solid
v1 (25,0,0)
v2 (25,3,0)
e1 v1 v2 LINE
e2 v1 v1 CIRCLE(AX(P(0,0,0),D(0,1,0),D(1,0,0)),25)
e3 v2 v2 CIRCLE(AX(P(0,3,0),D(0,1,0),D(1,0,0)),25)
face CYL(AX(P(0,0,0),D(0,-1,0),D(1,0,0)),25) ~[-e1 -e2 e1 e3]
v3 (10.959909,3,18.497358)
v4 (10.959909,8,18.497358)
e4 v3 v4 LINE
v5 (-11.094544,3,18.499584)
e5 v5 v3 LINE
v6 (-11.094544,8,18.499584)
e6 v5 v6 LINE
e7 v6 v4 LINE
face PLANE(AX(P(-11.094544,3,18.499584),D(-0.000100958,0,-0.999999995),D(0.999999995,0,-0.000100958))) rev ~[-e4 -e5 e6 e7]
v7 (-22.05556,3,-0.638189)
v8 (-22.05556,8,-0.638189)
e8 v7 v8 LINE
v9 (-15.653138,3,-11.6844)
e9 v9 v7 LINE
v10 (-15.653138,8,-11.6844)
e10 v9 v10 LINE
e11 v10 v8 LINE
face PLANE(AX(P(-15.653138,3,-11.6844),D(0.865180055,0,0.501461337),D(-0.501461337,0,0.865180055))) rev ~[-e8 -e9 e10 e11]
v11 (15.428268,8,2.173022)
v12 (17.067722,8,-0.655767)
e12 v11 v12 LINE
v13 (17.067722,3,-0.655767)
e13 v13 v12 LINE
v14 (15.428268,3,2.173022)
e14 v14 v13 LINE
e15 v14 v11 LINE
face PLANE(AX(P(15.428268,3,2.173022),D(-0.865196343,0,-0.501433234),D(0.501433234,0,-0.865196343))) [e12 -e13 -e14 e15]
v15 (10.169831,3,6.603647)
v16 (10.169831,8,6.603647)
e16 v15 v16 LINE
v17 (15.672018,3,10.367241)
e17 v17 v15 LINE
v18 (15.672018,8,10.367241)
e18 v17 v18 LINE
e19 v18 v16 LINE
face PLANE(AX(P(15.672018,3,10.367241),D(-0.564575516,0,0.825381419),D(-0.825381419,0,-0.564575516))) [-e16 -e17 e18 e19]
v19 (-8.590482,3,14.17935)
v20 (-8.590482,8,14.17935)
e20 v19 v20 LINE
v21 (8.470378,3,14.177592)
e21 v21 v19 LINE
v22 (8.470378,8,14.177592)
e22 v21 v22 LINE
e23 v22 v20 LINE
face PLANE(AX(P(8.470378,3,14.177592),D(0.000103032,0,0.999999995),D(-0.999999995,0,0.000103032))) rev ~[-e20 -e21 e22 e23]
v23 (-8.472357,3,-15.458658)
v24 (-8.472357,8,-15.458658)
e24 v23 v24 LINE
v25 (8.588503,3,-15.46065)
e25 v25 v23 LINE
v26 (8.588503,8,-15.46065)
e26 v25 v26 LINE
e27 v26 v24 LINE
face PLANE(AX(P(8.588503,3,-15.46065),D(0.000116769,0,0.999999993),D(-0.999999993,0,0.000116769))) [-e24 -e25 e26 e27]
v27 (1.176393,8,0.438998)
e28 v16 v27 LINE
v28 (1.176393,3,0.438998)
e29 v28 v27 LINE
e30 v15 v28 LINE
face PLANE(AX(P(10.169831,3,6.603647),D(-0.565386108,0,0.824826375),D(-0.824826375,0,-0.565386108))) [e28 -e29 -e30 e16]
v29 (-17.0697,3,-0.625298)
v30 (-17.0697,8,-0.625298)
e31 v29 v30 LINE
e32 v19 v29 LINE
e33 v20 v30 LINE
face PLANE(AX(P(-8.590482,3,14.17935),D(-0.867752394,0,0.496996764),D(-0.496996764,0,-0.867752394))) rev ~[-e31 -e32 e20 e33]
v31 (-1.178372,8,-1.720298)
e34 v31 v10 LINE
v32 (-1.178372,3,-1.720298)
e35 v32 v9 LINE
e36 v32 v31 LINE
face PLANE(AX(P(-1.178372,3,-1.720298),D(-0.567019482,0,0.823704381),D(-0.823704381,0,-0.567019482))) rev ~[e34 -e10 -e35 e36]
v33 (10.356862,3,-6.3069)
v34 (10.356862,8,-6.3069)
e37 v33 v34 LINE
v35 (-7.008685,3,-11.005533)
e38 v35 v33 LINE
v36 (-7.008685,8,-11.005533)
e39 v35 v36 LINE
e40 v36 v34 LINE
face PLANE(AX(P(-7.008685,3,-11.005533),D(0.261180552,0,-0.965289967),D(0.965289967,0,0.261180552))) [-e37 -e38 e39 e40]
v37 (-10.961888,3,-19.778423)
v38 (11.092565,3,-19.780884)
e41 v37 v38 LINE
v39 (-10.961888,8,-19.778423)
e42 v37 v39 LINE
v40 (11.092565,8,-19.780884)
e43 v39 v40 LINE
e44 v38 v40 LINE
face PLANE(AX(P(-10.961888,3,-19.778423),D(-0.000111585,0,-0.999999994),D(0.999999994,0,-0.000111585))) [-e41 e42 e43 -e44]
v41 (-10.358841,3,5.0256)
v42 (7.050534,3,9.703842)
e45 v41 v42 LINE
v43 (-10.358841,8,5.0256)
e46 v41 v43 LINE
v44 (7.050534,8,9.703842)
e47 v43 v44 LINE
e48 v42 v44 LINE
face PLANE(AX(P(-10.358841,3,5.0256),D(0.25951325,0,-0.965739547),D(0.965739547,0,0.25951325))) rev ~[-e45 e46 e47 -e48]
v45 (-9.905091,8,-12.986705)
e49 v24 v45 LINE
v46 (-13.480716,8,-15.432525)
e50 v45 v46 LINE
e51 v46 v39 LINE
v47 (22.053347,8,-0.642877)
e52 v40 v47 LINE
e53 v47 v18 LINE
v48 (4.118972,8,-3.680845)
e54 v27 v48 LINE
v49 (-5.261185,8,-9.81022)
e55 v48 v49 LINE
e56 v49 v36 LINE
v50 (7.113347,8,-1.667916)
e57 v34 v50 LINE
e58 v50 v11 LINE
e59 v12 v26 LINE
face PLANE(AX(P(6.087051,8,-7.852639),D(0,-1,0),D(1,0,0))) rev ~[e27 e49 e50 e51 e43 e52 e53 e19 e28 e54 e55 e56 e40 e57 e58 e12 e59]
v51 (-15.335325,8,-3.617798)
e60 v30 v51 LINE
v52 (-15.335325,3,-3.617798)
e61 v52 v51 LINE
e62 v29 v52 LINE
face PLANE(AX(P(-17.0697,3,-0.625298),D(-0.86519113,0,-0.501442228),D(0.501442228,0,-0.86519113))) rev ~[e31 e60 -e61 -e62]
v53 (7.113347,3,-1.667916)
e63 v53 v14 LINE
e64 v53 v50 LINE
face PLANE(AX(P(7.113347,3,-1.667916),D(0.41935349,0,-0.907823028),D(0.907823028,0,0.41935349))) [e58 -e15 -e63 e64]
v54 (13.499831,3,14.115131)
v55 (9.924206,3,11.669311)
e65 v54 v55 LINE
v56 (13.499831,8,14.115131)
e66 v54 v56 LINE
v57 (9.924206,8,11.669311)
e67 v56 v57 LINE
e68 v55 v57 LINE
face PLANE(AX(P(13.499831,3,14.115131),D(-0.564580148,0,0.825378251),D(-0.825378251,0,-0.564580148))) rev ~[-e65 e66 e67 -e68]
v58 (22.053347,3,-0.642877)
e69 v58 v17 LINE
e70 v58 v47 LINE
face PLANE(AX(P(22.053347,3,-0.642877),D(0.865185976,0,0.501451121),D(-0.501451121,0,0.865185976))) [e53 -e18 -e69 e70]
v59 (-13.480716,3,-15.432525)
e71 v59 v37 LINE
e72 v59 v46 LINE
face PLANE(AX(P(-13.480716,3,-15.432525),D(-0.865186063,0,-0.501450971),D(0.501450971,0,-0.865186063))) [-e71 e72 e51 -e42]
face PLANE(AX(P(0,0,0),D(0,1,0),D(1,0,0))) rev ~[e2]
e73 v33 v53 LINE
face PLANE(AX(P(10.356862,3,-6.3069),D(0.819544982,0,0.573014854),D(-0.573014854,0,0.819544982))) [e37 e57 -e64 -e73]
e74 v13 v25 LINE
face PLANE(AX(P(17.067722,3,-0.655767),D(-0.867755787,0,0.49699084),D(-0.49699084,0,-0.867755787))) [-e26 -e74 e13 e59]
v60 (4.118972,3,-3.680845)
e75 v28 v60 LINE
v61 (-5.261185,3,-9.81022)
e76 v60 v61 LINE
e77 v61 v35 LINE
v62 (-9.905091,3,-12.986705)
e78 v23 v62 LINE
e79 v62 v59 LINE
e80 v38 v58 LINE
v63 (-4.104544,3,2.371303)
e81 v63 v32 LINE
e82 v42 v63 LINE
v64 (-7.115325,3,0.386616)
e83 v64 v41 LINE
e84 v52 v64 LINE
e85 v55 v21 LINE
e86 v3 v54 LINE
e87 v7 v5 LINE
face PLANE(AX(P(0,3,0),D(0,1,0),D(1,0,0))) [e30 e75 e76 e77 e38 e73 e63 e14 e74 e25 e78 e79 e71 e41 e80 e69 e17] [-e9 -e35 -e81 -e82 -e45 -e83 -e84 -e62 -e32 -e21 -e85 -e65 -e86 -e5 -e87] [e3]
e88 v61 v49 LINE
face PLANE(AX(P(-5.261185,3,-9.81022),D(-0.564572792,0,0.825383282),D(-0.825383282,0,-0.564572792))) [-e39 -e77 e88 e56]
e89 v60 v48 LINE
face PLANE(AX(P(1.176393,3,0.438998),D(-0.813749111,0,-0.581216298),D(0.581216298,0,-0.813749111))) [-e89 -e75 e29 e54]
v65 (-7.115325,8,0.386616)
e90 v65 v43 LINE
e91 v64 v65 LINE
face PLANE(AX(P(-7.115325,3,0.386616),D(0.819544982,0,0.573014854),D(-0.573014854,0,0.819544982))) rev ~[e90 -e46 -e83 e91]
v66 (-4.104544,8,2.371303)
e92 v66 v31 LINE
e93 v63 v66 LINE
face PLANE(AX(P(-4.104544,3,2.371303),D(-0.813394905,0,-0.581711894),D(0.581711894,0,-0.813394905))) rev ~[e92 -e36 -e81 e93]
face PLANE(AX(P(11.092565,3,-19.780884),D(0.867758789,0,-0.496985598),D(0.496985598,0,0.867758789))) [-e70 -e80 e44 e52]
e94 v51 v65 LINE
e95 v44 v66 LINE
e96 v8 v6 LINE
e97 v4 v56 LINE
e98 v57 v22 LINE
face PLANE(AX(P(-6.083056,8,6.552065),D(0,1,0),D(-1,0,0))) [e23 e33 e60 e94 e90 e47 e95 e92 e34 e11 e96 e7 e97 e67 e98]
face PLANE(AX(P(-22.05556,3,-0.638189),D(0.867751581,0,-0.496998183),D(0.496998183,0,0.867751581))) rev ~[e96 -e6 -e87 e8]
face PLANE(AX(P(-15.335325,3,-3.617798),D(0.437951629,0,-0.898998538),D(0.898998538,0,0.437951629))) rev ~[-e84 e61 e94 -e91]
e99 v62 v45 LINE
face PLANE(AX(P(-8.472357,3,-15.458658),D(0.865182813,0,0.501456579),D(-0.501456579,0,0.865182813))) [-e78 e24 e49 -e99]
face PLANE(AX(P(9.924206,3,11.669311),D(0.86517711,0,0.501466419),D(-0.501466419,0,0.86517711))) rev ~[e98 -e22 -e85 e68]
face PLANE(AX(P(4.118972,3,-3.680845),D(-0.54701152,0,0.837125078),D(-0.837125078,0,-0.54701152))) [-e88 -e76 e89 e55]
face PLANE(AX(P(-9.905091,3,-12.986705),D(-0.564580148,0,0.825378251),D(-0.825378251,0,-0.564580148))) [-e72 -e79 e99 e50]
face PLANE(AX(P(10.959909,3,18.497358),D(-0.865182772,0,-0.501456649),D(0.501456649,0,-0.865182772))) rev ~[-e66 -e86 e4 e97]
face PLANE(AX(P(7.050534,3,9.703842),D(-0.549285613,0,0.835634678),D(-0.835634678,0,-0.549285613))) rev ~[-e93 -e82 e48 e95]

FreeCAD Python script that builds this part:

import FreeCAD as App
import Part
import Sketcher
from FreeCAD import Vector
Q = App.Units.Quantity

doc = App.newDocument("Part")
body = doc.addObject("PartDesign::Body", "Body")

sketch1 = body.newObject("Sketcher::SketchObject", "Sketch")
sketch1.AttachmentSupport = (doc.getObject("XZ_Plane"), [""])
sketch1.MapMode = "FlatFace"
sketch1.addGeometry(Part.Circle(Vector(0, 0, 0), Vector(0, 0, 1), 25), False)
sketch1.addConstraint(Sketcher.Constraint("Coincident", 0, 3, -1, 1))
sketch1.addConstraint(Sketcher.Constraint("Diameter", 0, Q("50 mm")))
pad1 = body.newObject("PartDesign::Pad", "Pad")
pad1.Profile = sketch1
pad1.Length = 3
pad1.Reversed = True

sketch2 = body.newObject("Sketcher::SketchObject", "Sketch001")
sketch2.AttachmentSupport = (doc.getObject("XZ_Plane"), [""])
sketch2.MapMode = "FlatFace"
sketch2.AttachmentOffset = App.Placement(Vector(0, 0, -3), App.Rotation())
sketch2.addGeometry(Part.LineSegment(Vector(-1.178372, -1.720298, 0), Vector(-4.104544, 2.371303, 0)), False)
sketch2.addGeometry(Part.LineSegment(Vector(-4.104544, 2.371303, 0), Vector(7.050534, 9.703842, 0)), False)
sketch2.addGeometry(Part.LineSegment(Vector(7.050534, 9.703842, 0), Vector(-10.358841, 5.0256, 0)), False)
sketch2.addGeometry(Part.LineSegment(Vector(-10.358841, 5.0256, 0), Vector(-7.115325, 0.386616, 0)), False)
sketch2.addGeometry(Part.LineSegment(Vector(-7.115325, 0.386616, 0), Vector(-15.335325, -3.617798, 0)), False)
sketch2.addGeometry(Part.LineSegment(Vector(-15.335325, -3.617798, 0), Vector(-17.0697, -0.625298, 0)), False)
sketch2.addGeometry(Part.LineSegment(Vector(-17.0697, -0.625298, 0), Vector(-8.590482, 14.17935, 0)), False)
sketch2.addGeometry(Part.LineSegment(Vector(-8.590482, 14.17935, 0), Vector(8.470378, 14.177592, 0)), False)
sketch2.addGeometry(Part.LineSegment(Vector(8.470378, 14.177592, 0), Vector(9.924206, 11.669311, 0)), False)
sketch2.addGeometry(Part.LineSegment(Vector(9.924206, 11.669311, 0), Vector(13.499831, 14.115131, 0)), False)
sketch2.addGeometry(Part.LineSegment(Vector(13.499831, 14.115131, 0), Vector(10.959909, 18.497358, 0)), False)
sketch2.addGeometry(Part.LineSegment(Vector(10.959909, 18.497358, 0), Vector(-11.094544, 18.499584, 0)), False)
sketch2.addGeometry(Part.LineSegment(Vector(-11.094544, 18.499584, 0), Vector(-22.05556, -0.638189, 0)), False)
sketch2.addGeometry(Part.LineSegment(Vector(-22.05556, -0.638189, 0), Vector(-15.653138, -11.6844, 0)), False)
sketch2.addGeometry(Part.LineSegment(Vector(-15.653138, -11.6844, 0), Vector(-1.178372, -1.720298, 0)), False)
sketch2.addGeometry(Part.LineSegment(Vector(15.672018, 10.367241, 0), Vector(10.169831, 6.603647, 0)), False)
sketch2.addGeometry(Part.LineSegment(Vector(10.169831, 6.603647, 0), Vector(1.176393, 0.438998, 0)), False)
sketch2.addGeometry(Part.LineSegment(Vector(1.176393, 0.438998, 0), Vector(4.118972, -3.680845, 0)), False)
sketch2.addGeometry(Part.LineSegment(Vector(4.118972, -3.680845, 0), Vector(-5.261185, -9.81022, 0)), False)
sketch2.addGeometry(Part.LineSegment(Vector(-5.261185, -9.81022, 0), Vector(-7.008685, -11.005533, 0)), False)
sketch2.addGeometry(Part.LineSegment(Vector(-7.008685, -11.005533, 0), Vector(10.356862, -6.3069, 0)), False)
sketch2.addGeometry(Part.LineSegment(Vector(10.356862, -6.3069, 0), Vector(7.113347, -1.667916, 0)), False)
sketch2.addGeometry(Part.LineSegment(Vector(7.113347, -1.667916, 0), Vector(15.428268, 2.173022, 0)), False)
sketch2.addGeometry(Part.LineSegment(Vector(15.428268, 2.173022, 0), Vector(17.067722, -0.655767, 0)), False)
sketch2.addGeometry(Part.LineSegment(Vector(17.067722, -0.655767, 0), Vector(8.588503, -15.46065, 0)), False)
sketch2.addGeometry(Part.LineSegment(Vector(8.588503, -15.46065, 0), Vector(-8.472357, -15.458658, 0)), False)
sketch2.addGeometry(Part.LineSegment(Vector(-8.472357, -15.458658, 0), Vector(-9.905091, -12.986705, 0)), False)
sketch2.addGeometry(Part.LineSegment(Vector(-9.905091, -12.986705, 0), Vector(-13.480716, -15.432525, 0)), False)
sketch2.addGeometry(Part.LineSegment(Vector(-13.480716, -15.432525, 0), Vector(-10.961888, -19.778423, 0)), False)
sketch2.addGeometry(Part.LineSegment(Vector(-10.961888, -19.778423, 0), Vector(11.092565, -19.780884, 0)), False)
sketch2.addGeometry(Part.LineSegment(Vector(11.092565, -19.780884, 0), Vector(22.053347, -0.642877, 0)), False)
sketch2.addGeometry(Part.LineSegment(Vector(22.053347, -0.642877, 0), Vector(15.672018, 10.367241, 0)), False)
sketch2.addConstraint(Sketcher.Constraint("Coincident", 0, 2, 1, 1))
sketch2.addConstraint(Sketcher.Constraint("Coincident", 1, 2, 2, 1))
sketch2.addConstraint(Sketcher.Constraint("Coincident", 2, 2, 3, 1))
sketch2.addConstraint(Sketcher.Constraint("Coincident", 3, 2, 4, 1))
sketch2.addConstraint(Sketcher.Constraint("Coincident", 4, 2, 5, 1))
sketch2.addConstraint(Sketcher.Constraint("Coincident", 5, 2, 6, 1))
sketch2.addConstraint(Sketcher.Constraint("Coincident", 6, 2, 7, 1))
sketch2.addConstraint(Sketcher.Constraint("Coincident", 7, 2, 8, 1))
sketch2.addConstraint(Sketcher.Constraint("Coincident", 8, 2, 9, 1))
sketch2.addConstraint(Sketcher.Constraint("Coincident", 9, 2, 10, 1))
sketch2.addConstraint(Sketcher.Constraint("Coincident", 10, 2, 11, 1))
sketch2.addConstraint(Sketcher.Constraint("Coincident", 11, 2, 12, 1))
sketch2.addConstraint(Sketcher.Constraint("Coincident", 12, 2, 13, 1))
sketch2.addConstraint(Sketcher.Constraint("Coincident", 13, 2, 14, 1))
sketch2.addConstraint(Sketcher.Constraint("Coincident", 14, 2, 0, 1))
sketch2.addConstraint(Sketcher.Constraint("Coincident", 15, 2, 16, 1))
sketch2.addConstraint(Sketcher.Constraint("Coincident", 16, 2, 17, 1))
sketch2.addConstraint(Sketcher.Constraint("Coincident", 17, 2, 18, 1))
sketch2.addConstraint(Sketcher.Constraint("Coincident", 18, 2, 19, 1))
sketch2.addConstraint(Sketcher.Constraint("Coincident", 19, 2, 20, 1))
sketch2.addConstraint(Sketcher.Constraint("Coincident", 20, 2, 21, 1))
sketch2.addConstraint(Sketcher.Constraint("Coincident", 21, 2, 22, 1))
sketch2.addConstraint(Sketcher.Constraint("Coincident", 22, 2, 23, 1))
sketch2.addConstraint(Sketcher.Constraint("Coincident", 23, 2, 24, 1))
sketch2.addConstraint(Sketcher.Constraint("Coincident", 24, 2, 25, 1))
sketch2.addConstraint(Sketcher.Constraint("Coincident", 25, 2, 26, 1))
sketch2.addConstraint(Sketcher.Constraint("Coincident", 26, 2, 27, 1))
sketch2.addConstraint(Sketcher.Constraint("Coincident", 27, 2, 28, 1))
sketch2.addConstraint(Sketcher.Constraint("Coincident", 28, 2, 29, 1))
sketch2.addConstraint(Sketcher.Constraint("Coincident", 29, 2, 30, 1))
sketch2.addConstraint(Sketcher.Constraint("Coincident", 30, 2, 31, 1))
sketch2.addConstraint(Sketcher.Constraint("Coincident", 31, 2, 15, 1))
sketch2.addConstraint(Sketcher.Constraint("DistanceX", 4, 2, 3, 2, Q("8.22 mm")))
sketch2.addConstraint(Sketcher.Constraint("DistanceX", 11, 2, 0, 2, Q("6.99 mm")))
sketch2.addConstraint(Sketcher.Constraint("DistanceY", 13, 2, 2, 2, Q("16.71 mm")))
sketch2.addConstraint(Sketcher.Constraint("DistanceX", 15, 2, 9, 2, Q("3.33 mm")))
sketch2.addConstraint(Sketcher.Constraint("DistanceX", 21, 2, 30, 2, Q("14.94 mm")))
sketch2.addConstraint(Sketcher.Constraint("DistanceY", -1, 1, 16, 2, Q("0.438998 mm")))
sketch2.addConstraint(Sketcher.Constraint("Distance", 19, Q("2.117198 mm")))
sketch2.addConstraint(Sketcher.Constraint("DistanceY", -1, 1, 2, 2, Q("5.0256 mm")))
sketch2.addConstraint(Sketcher.Constraint("DistanceY", 4, 2, -1, 1, Q("3.617798 mm")))
sketch2.addConstraint(Sketcher.Constraint("DistanceX", 5, 2, -1, 1, Q("17.0697 mm")))
sketch2.addConstraint(Sketcher.Constraint("DistanceY", 5, 2, -1, 1, Q("0.625298 mm")))
sketch2.addConstraint(Sketcher.Constraint("DistanceY", 14, 2, -1, 1, Q("1.720298 mm")))
sketch2.addConstraint(Sketcher.Constraint("DistanceY", 20, 2, -1, 1, Q("6.3069 mm")))
sketch2.addConstraint(Sketcher.Constraint("DistanceY", 4, 2, 0, 2, Q("5.989102 mm")))
sketch2.addConstraint(Sketcher.Constraint("DistanceX", 19, 2, 18, 2, Q("1.7475 mm")))
sketch2.addConstraint(Sketcher.Constraint("DistanceY", 28, 2, 27, 2, Q("4.345898 mm")))
sketch2.addConstraint(Sketcher.Constraint("DistanceY", 30, 2, 22, 2, Q("2.815898 mm")))
sketch2.addConstraint(Sketcher.Constraint("Distance", 1, Q("13.349228 mm")))
sketch2.addConstraint(Sketcher.Constraint("Distance", 3, Q("5.660439 mm")))
sketch2.addConstraint(Sketcher.Constraint("Distance", 7, Q("17.060859 mm")))
sketch2.addConstraint(Sketcher.Constraint("Distance", 12, Q("22.054438 mm")))
sketch2.addConstraint(Sketcher.Constraint("Distance", 13, Q("12.767528 mm")))
sketch2.addConstraint(Sketcher.Constraint("Distance", 16, Q("10.903431 mm")))
sketch2.addConstraint(Sketcher.Constraint("Distance", 20, Q("17.98998 mm")))
sketch2.addConstraint(Sketcher.Constraint("Distance", 21, Q("5.660439 mm")))
sketch2.addConstraint(Sketcher.Constraint("Distance", 22, Q("9.159188 mm")))
sketch2.addConstraint(Sketcher.Constraint("Distance", 25, Q("17.060859 mm")))
sketch2.addConstraint(Sketcher.Constraint("Distance", 28, Q("5.02308 mm")))
sketch2.addConstraint(Sketcher.Constraint("DistanceX", 2, 2, -1, 1, Q("10.358841 mm")))
sketch2.addConstraint(Sketcher.Constraint("DistanceX", 6, 2, -1, 1, Q("8.590482 mm")))
sketch2.addConstraint(Sketcher.Constraint("DistanceY", -1, 1, 6, 2, Q("14.17935 mm")))
sketch2.addConstraint(Sketcher.Constraint("DistanceY", -1, 1, 8, 2, Q("11.669311 mm")))
sketch2.addConstraint(Sketcher.Constraint("DistanceX", -1, 1, 9, 2, Q("13.499831 mm")))
sketch2.addConstraint(Sketcher.Constraint("DistanceY", -1, 1, 9, 2, Q("14.115131 mm")))
sketch2.addConstraint(Sketcher.Constraint("DistanceX", -1, 1, 10, 2, Q("10.959909 mm")))
sketch2.addConstraint(Sketcher.Constraint("DistanceX", 12, 2, -1, 1, Q("22.05556 mm")))
sketch2.addConstraint(Sketcher.Constraint("DistanceY", 12, 2, -1, 1, Q("0.638189 mm")))
sketch2.addConstraint(Sketcher.Constraint("DistanceX", -1, 1, 17, 2, Q("4.118972 mm")))
sketch2.addConstraint(Sketcher.Constraint("DistanceY", 18, 2, -1, 1, Q("9.81022 mm")))
sketch2.addConstraint(Sketcher.Constraint("DistanceX", -1, 1, 22, 2, Q("15.428268 mm")))
sketch2.addConstraint(Sketcher.Constraint("DistanceY", -1, 1, 22, 2, Q("2.173022 mm")))
sketch2.addConstraint(Sketcher.Constraint("DistanceX", -1, 1, 23, 2, Q("17.067722 mm")))
sketch2.addConstraint(Sketcher.Constraint("DistanceY", 24, 2, -1, 1, Q("15.46065 mm")))
sketch2.addConstraint(Sketcher.Constraint("DistanceX", 26, 2, -1, 1, Q("9.905091 mm")))
sketch2.addConstraint(Sketcher.Constraint("DistanceX", -1, 1, 31, 2, Q("15.672018 mm")))
sketch2.addConstraint(Sketcher.Constraint("DistanceY", -1, 1, 31, 2, Q("10.367241 mm")))
sketch2.addConstraint(Sketcher.Constraint("DistanceX", 0, 2, 1, 2, Q("11.155078 mm")))
sketch2.addConstraint(Sketcher.Constraint("DistanceX", 3, 2, 0, 2, Q("3.010781 mm")))
sketch2.addConstraint(Sketcher.Constraint("DistanceY", 1, 2, 7, 2, Q("4.47375 mm")))
sketch2.addConstraint(Sketcher.Constraint("DistanceX", 0, 2, 7, 2, Q("12.574922 mm")))
sketch2.addConstraint(Sketcher.Constraint("DistanceX", 7, 2, 8, 2, Q("1.453828 mm")))
sketch2.addConstraint(Sketcher.Constraint("DistanceX", 0, 2, 14, 2, Q("2.926172 mm")))
sketch2.addConstraint(Sketcher.Constraint("DistanceY", 15, 2, 10, 2, Q("11.893711 mm")))
sketch2.addConstraint(Sketcher.Constraint("DistanceX", 3, 2, 16, 2, Q("8.291719 mm")))
sketch2.addConstraint(Sketcher.Constraint("DistanceY", 17, 2, 0, 2, Q("6.052148 mm")))
sketch2.addConstraint(Sketcher.Constraint("DistanceX", 3, 2, 18, 2, Q("1.854141 mm")))
sketch2.addConstraint(Sketcher.Constraint("DistanceY", 23, 2, 22, 2, Q("2.828789 mm")))
sketch2.addConstraint(Sketcher.Constraint("DistanceX", 24, 2, 20, 2, Q("1.768359 mm")))
sketch2.addConstraint(Sketcher.Constraint("DistanceY", 25, 2, 4, 2, Q("11.840859 mm")))
sketch2.addConstraint(Sketcher.Constraint("DistanceY", 26, 2, 19, 2, Q("1.981172 mm")))
sketch2.addConstraint(Sketcher.Constraint("DistanceY", 27, 2, 26, 2, Q("2.44582 mm")))
sketch2.addConstraint(Sketcher.Constraint("DistanceX", 13, 2, 27, 2, Q("2.172422 mm")))
sketch2.addConstraint(Sketcher.Constraint("DistanceY", 29, 2, 17, 2, Q("16.100039 mm")))
sketch2.addConstraint(Sketcher.Constraint("DistanceX", 21, 2, 29, 2, Q("3.979219 mm")))
pad2 = body.newObject("PartDesign::Pad", "Pad001")
pad2.Profile = sketch2
pad2.Length = 5
pad2.Reversed = True

doc.recompute()
